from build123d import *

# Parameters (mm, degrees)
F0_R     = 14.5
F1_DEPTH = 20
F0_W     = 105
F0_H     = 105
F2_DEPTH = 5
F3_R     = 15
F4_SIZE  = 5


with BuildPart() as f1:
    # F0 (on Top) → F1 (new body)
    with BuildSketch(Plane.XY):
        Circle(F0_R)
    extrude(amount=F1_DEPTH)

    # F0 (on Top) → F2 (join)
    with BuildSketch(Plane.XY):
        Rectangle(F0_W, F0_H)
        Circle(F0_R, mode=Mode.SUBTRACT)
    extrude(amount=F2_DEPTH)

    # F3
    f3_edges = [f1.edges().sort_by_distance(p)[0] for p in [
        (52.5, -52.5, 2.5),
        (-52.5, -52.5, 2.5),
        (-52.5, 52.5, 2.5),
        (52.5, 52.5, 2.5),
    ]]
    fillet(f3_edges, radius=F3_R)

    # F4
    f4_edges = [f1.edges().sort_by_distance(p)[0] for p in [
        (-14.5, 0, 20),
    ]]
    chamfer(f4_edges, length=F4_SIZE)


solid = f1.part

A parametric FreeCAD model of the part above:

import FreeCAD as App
import Part
import Sketcher


def edges_at(feature, points):
    """Names of the edges that pass closest to the given points."""
    edges = feature.Shape.Edges
    near = lambda p: min(range(len(edges)), key=lambda i: edges[i].distToShape(Part.Vertex(*p))[0])
    return sorted({f"Edge{near(p) + 1}" for p in points})

doc = App.newDocument("Part")
params = doc.addObject("Spreadsheet::Sheet", "Params")
for row, (alias, value) in enumerate([
    ("sketch1_diameter", "29 mm"),
    ("pad1_length", "20 mm"),
    ("sketch2_diameter", "29 mm"),
    ("sketch2_width", "105 mm"),
    ("pad2_length", "5 mm"),
    ("fillet_radius", "15 mm"),
    ("chamfer_size", "5 mm"),
], start=1):
    params.set(f"A{row}", alias)
    params.set(f"B{row}", "=" + value)
    params.setAlias(f"B{row}", alias)

body = doc.addObject("PartDesign::Body", "Body")

sketch1 = body.newObject("Sketcher::SketchObject", "Sketch")
sketch1.AttachmentSupport = (doc.getObject("XY_Plane"), [""])
sketch1.MapMode = "FlatFace"
sketch1.addGeometry(Part.Circle(App.Vector(0, 0, 0), App.Vector(0, 0, 1), 14), False)
sketch1.addConstraint([
    Sketcher.Constraint("Coincident", 0, 3, -1, 1),
    Sketcher.Constraint("Diameter", 0, 29.0),
])
sketch1.setExpression("Constraints[1]", "Params.sketch1_diameter")
pad1 = body.newObject("PartDesign::Pad", "Pad")
pad1.Profile = sketch1
pad1.setExpression("Length", "Params.pad1_length")

sketch2 = body.newObject("Sketcher::SketchObject", "Sketch001")
sketch2.AttachmentSupport = (doc.getObject("XY_Plane"), [""])
sketch2.MapMode = "FlatFace"
sketch2.addGeometry([
    Part.LineSegment(App.Vector(-52, 52, 0), App.Vector(-52, -52, 0)),
    Part.LineSegment(App.Vector(-52, -52, 0), App.Vector(52, -52, 0)),
    Part.LineSegment(App.Vector(52, -52, 0), App.Vector(52, 52, 0)),
    Part.LineSegment(App.Vector(52, 52, 0), App.Vector(-52, 52, 0)),
    Part.Circle(App.Vector(0, 0, 0), App.Vector(0, 0, 1), 14),
], False)
sketch2.addConstraint([
    Sketcher.Constraint("Coincident", 0, 2, 1, 1),
    Sketcher.Constraint("Coincident", 1, 2, 2, 1),
    Sketcher.Constraint("Coincident", 2, 2, 3, 1),
    Sketcher.Constraint("Coincident", 3, 2, 0, 1),
    Sketcher.Constraint("Vertical", 0),
    Sketcher.Constraint("Horizontal", 1),
    Sketcher.Constraint("Vertical", 2),
    Sketcher.Constraint("Horizontal", 3),
    Sketcher.Constraint("Coincident", 4, 3, -1, 1),
    Sketcher.Constraint("Symmetric", 0, 2, 2, 2, -1, 1),
    Sketcher.Constraint("Equal", 3, 0),
    Sketcher.Constraint("Diameter", 4, 29.0),
    Sketcher.Constraint("DistanceX", 1, 1, 1, 2, 105.0),
])
sketch2.setExpression("Constraints[11]", "Params.sketch2_diameter")
sketch2.setExpression("Constraints[12]", "Params.sketch2_width")
pad2 = body.newObject("PartDesign::Pad", "Pad001")
pad2.Profile = sketch2
pad2.setExpression("Length", "Params.pad2_length")
doc.recompute()

fillet = body.newObject("PartDesign::Fillet", "Fillet")
fillet.Base = (pad2, edges_at(pad2, [
    (52.5, -52.5, 2.5),
    (-52.5, -52.5, 2.5),
    (-52.5, 52.5, 2.5),
    (52.5, 52.5, 2.5),
]))
fillet.setExpression("Radius", "Params.fillet_radius")
doc.recompute()

chamfer = body.newObject("PartDesign::Chamfer", "Chamfer")
chamfer.Base = (fillet, edges_at(fillet, [(-14.5, 0, 20)]))
chamfer.setExpression("Size", "Params.chamfer_size")

doc.recompute()
